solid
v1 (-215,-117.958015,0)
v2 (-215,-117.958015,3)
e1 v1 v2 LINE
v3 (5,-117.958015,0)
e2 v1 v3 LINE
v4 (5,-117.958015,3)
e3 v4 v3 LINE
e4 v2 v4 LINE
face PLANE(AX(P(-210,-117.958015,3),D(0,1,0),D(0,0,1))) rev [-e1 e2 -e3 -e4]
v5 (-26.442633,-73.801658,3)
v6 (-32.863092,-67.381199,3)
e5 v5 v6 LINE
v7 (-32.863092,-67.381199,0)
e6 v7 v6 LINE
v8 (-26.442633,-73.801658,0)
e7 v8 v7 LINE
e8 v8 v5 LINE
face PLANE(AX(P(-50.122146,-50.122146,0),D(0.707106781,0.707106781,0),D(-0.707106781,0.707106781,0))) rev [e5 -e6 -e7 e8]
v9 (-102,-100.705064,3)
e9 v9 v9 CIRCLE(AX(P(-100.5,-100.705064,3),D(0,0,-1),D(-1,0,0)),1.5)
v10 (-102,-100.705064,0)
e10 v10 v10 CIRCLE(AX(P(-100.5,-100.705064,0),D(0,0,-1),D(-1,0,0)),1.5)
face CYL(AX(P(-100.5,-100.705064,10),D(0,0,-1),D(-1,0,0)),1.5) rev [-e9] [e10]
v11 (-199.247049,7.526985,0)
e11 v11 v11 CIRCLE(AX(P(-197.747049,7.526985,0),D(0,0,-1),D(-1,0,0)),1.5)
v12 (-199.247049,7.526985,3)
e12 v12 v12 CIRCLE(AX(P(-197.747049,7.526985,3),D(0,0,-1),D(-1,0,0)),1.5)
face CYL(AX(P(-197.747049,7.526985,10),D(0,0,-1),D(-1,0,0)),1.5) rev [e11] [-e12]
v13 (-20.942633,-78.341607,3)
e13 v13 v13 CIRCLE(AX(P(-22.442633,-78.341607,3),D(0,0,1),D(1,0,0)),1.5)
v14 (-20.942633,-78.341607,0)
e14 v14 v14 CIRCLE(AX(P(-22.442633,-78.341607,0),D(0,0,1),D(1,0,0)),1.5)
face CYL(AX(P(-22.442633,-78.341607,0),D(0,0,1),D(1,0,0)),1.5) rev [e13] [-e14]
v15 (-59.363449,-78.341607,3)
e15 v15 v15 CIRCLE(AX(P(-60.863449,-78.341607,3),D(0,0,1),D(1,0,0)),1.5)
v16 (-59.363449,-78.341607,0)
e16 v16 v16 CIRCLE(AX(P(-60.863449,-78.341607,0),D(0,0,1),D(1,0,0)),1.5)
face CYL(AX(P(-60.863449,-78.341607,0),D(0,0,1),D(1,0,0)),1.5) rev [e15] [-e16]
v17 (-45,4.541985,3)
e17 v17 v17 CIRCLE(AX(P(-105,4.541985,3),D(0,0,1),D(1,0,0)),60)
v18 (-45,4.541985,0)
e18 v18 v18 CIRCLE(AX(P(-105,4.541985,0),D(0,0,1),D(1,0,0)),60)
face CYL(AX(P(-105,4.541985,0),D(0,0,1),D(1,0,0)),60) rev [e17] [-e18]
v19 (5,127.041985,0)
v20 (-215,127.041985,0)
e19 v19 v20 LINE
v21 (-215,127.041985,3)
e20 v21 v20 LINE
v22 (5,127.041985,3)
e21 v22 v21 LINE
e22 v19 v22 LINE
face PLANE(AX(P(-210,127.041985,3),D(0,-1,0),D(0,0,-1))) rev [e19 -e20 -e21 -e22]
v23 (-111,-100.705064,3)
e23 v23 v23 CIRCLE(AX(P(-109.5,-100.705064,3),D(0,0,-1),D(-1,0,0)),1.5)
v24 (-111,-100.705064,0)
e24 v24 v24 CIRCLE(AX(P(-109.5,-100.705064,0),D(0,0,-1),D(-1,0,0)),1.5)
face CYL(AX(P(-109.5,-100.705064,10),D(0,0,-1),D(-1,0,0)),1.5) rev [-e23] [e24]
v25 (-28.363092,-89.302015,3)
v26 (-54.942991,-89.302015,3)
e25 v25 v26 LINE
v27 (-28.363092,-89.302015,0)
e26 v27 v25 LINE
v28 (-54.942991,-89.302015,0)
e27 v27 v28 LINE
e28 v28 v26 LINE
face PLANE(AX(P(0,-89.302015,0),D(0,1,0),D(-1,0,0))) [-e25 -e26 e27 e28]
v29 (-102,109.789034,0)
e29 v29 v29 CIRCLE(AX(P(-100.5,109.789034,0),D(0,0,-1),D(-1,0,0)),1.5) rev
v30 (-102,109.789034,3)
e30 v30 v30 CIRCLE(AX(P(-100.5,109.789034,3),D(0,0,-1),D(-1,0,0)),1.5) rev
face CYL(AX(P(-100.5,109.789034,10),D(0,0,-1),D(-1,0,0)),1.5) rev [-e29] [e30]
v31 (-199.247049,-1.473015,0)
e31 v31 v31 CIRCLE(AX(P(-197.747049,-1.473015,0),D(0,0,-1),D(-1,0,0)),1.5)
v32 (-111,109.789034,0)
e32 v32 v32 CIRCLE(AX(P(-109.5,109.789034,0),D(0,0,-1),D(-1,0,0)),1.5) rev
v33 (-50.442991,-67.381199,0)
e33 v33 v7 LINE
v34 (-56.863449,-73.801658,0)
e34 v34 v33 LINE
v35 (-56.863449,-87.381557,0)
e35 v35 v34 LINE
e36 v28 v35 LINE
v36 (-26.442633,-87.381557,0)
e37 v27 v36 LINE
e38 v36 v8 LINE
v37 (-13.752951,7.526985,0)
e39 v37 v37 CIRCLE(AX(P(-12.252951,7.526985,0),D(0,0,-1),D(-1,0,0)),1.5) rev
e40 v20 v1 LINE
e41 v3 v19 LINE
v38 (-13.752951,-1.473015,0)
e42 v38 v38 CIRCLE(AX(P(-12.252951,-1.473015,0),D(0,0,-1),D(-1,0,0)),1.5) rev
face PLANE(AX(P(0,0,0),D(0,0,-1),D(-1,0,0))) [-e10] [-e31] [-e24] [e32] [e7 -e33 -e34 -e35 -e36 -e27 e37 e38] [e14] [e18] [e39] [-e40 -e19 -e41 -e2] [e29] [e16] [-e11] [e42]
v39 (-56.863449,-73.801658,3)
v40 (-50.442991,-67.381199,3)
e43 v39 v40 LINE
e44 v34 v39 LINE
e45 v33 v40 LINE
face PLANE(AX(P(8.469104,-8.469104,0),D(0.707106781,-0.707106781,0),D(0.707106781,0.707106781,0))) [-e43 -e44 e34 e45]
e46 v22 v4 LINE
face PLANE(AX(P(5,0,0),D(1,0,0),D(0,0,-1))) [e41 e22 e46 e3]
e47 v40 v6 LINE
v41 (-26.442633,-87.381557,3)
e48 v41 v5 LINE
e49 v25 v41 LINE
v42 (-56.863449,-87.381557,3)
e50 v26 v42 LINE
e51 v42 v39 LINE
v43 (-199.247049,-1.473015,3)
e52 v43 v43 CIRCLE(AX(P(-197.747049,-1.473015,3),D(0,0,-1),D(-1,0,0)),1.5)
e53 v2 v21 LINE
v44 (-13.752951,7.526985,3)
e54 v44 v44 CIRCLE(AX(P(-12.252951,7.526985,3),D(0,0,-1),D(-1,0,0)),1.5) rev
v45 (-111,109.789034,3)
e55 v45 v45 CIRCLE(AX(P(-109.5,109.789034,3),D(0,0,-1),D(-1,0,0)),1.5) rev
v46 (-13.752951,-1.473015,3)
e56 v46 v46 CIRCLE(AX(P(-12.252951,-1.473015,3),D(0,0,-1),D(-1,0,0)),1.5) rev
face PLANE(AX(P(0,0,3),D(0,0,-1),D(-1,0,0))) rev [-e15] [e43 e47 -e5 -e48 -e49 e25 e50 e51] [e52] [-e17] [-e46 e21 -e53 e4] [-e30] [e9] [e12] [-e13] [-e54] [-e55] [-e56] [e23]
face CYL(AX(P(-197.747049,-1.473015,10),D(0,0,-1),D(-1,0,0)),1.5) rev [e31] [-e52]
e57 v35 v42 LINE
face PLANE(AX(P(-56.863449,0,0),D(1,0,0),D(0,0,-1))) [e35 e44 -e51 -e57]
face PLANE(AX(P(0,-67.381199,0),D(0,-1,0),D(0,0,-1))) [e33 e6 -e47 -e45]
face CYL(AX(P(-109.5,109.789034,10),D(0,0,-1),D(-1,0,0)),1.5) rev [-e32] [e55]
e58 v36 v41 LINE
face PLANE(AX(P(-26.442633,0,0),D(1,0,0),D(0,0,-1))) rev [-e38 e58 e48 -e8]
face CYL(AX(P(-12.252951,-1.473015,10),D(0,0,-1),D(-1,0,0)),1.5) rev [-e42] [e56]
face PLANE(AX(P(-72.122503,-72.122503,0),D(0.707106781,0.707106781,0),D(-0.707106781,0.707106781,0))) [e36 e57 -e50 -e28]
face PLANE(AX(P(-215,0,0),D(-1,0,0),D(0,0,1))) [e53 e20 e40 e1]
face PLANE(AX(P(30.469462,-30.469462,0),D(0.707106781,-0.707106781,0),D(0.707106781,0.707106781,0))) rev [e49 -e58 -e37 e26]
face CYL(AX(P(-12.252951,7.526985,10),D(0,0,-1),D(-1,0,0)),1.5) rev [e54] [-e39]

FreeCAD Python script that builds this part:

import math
import FreeCAD as App
import Part
import Sketcher
from FreeCAD import Vector
Q = App.Units.Quantity

doc = App.newDocument("Part")
body = doc.addObject("PartDesign::Body", "Body")

# Sketch on XY plane
sketch1 = body.newObject("Sketcher::SketchObject", "Sketch")
sketch1.AttachmentSupport = (doc.getObject("XY_Plane"), [""])
sketch1.MapMode = "FlatFace"
sketch1.addGeometry([
    Part.LineSegment(Vector(-210, 127, 0), Vector(-210, -118, 0)),
    Part.LineSegment(Vector(-210, -118, 0), Vector(0, -118, 0)),
    Part.LineSegment(Vector(0, -118, 0), Vector(0, 127, 0)),
    Part.LineSegment(Vector(0, 127, 0), Vector(-210, 127, 0)),
], False)
sketch1.addConstraint([
    Sketcher.Constraint("Coincident", 0, 2, 1, 1),
    Sketcher.Constraint("Coincident", 1, 2, 2, 1),
    Sketcher.Constraint("Coincident", 2, 2, 3, 1),
    Sketcher.Constraint("Coincident", 3, 2, 0, 1),
    Sketcher.Constraint("Vertical", 0),
    Sketcher.Constraint("Horizontal", 1),
    Sketcher.Constraint("Vertical", 2),
    Sketcher.Constraint("Horizontal", 3),
    Sketcher.Constraint("PointOnObject", 1, 2, -2),
    Sketcher.Constraint("DistanceX", 1, 1, 1, 2, Q("210 mm")),
    Sketcher.Constraint("DistanceY", 0, 2, 0, 1, Q("245 mm")),
    Sketcher.Constraint("DistanceY", 0, 2, -1, 1, Q("117.958015 mm")),
])
pad1 = body.newObject("PartDesign::Pad", "Pad")
pad1.Profile = sketch1
pad1.Length = 3

# Sketch on XY plane
sketch2 = body.newObject("Sketcher::SketchObject", "Sketch001")
sketch2.AttachmentSupport = (doc.getObject("XY_Plane"), [""])
sketch2.MapMode = "FlatFace"
sketch2.AttachmentOffset = App.Placement(Vector(0, 0, 3), App.Rotation())
sketch2.addGeometry([
    Part.ArcOfCircle(Part.Circle(Vector(-105, 5, 0), Vector(0, 0, 1), 60), math.radians(0), math.radians(90)),
    Part.ArcOfCircle(Part.Circle(Vector(-105, 5, 0), Vector(0, 0, 1), 60), math.radians(90), math.radians(270)),
    Part.ArcOfCircle(Part.Circle(Vector(-105, 5, 0), Vector(0, 0, 1), 60), math.radians(-90), math.radians(0)),
], False)
sketch2.addConstraint([
    Sketcher.Constraint("Tangent", 0, 2, 1, 1),
    Sketcher.Constraint("Tangent", 1, 2, 2, 1),
    Sketcher.Constraint("Tangent", 2, 2, 0, 1),
    Sketcher.Constraint("Horizontal", 1, 3, 2, 2),
    Sketcher.Constraint("Vertical", 2, 3, 0, 2),
    Sketcher.Constraint("Vertical", 0, 2, 1, 2),
    Sketcher.Constraint("Radius", 0, Q("60 mm")),
    Sketcher.Constraint("DistanceX", 0, 3, -1, 1, Q("105 mm")),
    Sketcher.Constraint("DistanceY", -1, 1, 0, 3, Q("4.541985 mm")),
])
pocket1 = body.newObject("PartDesign::Pocket", "Pocket")
pocket1.Profile = sketch2
pocket1.Length = 3

# Sketch on XY plane
sketch3 = body.newObject("Sketcher::SketchObject", "Sketch002")
sketch3.AttachmentSupport = (doc.getObject("XY_Plane"), [""])
sketch3.MapMode = "FlatFace"
sketch3.AttachmentOffset = App.Placement(Vector(0, 0, 3), App.Rotation())
sketch3.addGeometry([
    Part.LineSegment(Vector(-50.4, -67.4, 0), Vector(-56.9, -73.8, 0)),  # 0
    Part.LineSegment(Vector(-56.9, -73.8, 0), Vector(-56.9, -87.4, 0)),  # 1
    Part.LineSegment(Vector(-56.9, -87.4, 0), Vector(-54.9, -89.3, 0)),  # 2
    Part.LineSegment(Vector(-54.9, -89.3, 0), Vector(-28.4, -89.3, 0)),  # 3
    Part.LineSegment(Vector(-28.4, -89.3, 0), Vector(-26.4, -87.4, 0)),  # 4
    Part.LineSegment(Vector(-26.4, -87.4, 0), Vector(-26.4, -73.8, 0)),  # 5
    Part.LineSegment(Vector(-26.4, -73.8, 0), Vector(-32.9, -67.4, 0)),  # 6
    Part.LineSegment(Vector(-32.9, -67.4, 0), Vector(-50.4, -67.4, 0)),  # 7
], False)
sketch3.addConstraint([
    Sketcher.Constraint("Coincident", 0, 2, 1, 1),
    Sketcher.Constraint("Coincident", 1, 2, 2, 1),
    Sketcher.Constraint("Coincident", 2, 2, 3, 1),
    Sketcher.Constraint("Coincident", 3, 2, 4, 1),
    Sketcher.Constraint("Coincident", 4, 2, 5, 1),
    Sketcher.Constraint("Coincident", 5, 2, 6, 1),
    Sketcher.Constraint("Coincident", 6, 2, 7, 1),
    Sketcher.Constraint("Coincident", 7, 2, 0, 1),
    Sketcher.Constraint("Vertical", 1),
    Sketcher.Constraint("Horizontal", 3),
    Sketcher.Constraint("Vertical", 5),
    Sketcher.Constraint("Horizontal", 7),
    Sketcher.Constraint("Perpendicular", 0, 2),
    Sketcher.Constraint("Perpendicular", 2, 4),
    Sketcher.Constraint("Perpendicular", 4, 6),
    Sketcher.Constraint("Horizontal", 1, 2, 4, 2),
    Sketcher.Constraint("Horizontal", 0, 2, 5, 2),
    Sketcher.Constraint("Equal", 2, 4),
    Sketcher.Constraint("DistanceX", 6, 2, 3, 2, Q("4.5 mm")),
    Sketcher.Constraint("DistanceX", 3, 1, 3, 2, Q("26.579899 mm")),
    Sketcher.Constraint("DistanceY", 1, 2, 1, 1, Q("13.579899 mm")),
    Sketcher.Constraint("Distance", 0, Q("9.079899 mm")),
    Sketcher.Constraint("DistanceY", 6, 2, -1, 1, Q("67.381199 mm")),
    Sketcher.Constraint("DistanceX", 0, 2, -1, 1, Q("56.863449 mm")),
])
pocket2 = body.newObject("PartDesign::Pocket", "Pocket001")
pocket2.Profile = sketch3
pocket2.Length = 3

# Sketch on XY plane
sketch4 = body.newObject("Sketcher::SketchObject", "Sketch003")
sketch4.AttachmentSupport = (doc.getObject("XY_Plane"), [""])
sketch4.MapMode = "FlatFace"
sketch4.AttachmentOffset = App.Placement(Vector(0, 0, 3), App.Rotation())
sketch4.addGeometry([
    Part.ArcOfCircle(Part.Circle(Vector(-60.9, -78.3, 0), Vector(0, 0, 1), 1.5), math.radians(90), math.radians(270)),  # 0
    Part.ArcOfCircle(Part.Circle(Vector(-60.9, -78.3, 0), Vector(0, 0, 1), 1.5), math.radians(-90), math.radians(0)),  # 1
    Part.ArcOfCircle(Part.Circle(Vector(-60.9, -78.3, 0), Vector(0, 0, 1), 1.5), math.radians(0), math.radians(90)),  # 2
    Part.ArcOfCircle(Part.Circle(Vector(-22.4, -78.3, 0), Vector(0, 0, 1), 1.5), math.radians(90), math.radians(270)),  # 3
    Part.ArcOfCircle(Part.Circle(Vector(-22.4, -78.3, 0), Vector(0, 0, 1), 1.5), math.radians(-90), math.radians(0)),  # 4
    Part.ArcOfCircle(Part.Circle(Vector(-22.4, -78.3, 0), Vector(0, 0, 1), 1.5), math.radians(0), math.radians(90)),  # 5
], False)
sketch4.addConstraint([
    Sketcher.Constraint("Tangent", 0, 2, 1, 1),
    Sketcher.Constraint("Tangent", 1, 2, 2, 1),
    Sketcher.Constraint("Tangent", 2, 2, 0, 1),
    Sketcher.Constraint("Tangent", 3, 2, 4, 1),
    Sketcher.Constraint("Tangent", 4, 2, 5, 1),
    Sketcher.Constraint("Tangent", 5, 2, 3, 1),
    Sketcher.Constraint("Equal", 2, 3),
    Sketcher.Constraint("Horizontal", 2, 3, 3, 3),
    Sketcher.Constraint("Horizontal", 5, 3, 1, 2),
    Sketcher.Constraint("Horizontal", 1, 2, 4, 2),
    Sketcher.Constraint("Vertical", 2, 3, 0, 2),
    Sketcher.Constraint("Vertical", 0, 2, 2, 2),
    Sketcher.Constraint("Vertical", 5, 3, 3, 2),
    Sketcher.Constraint("Vertical", 3, 2, 5, 2),
    Sketcher.Constraint("Radius", 0, Q("1.5 mm")),
    Sketcher.Constraint("DistanceX", 0, 3, -1, 1, Q("60.863449 mm")),
    Sketcher.Constraint("DistanceY", 0, 3, -1, 1, Q("78.341607 mm")),
    Sketcher.Constraint("DistanceX", 3, 3, -1, 1, Q("22.442633 mm")),
])
pocket3 = body.newObject("PartDesign::Pocket", "Pocket002")
pocket3.Profile = sketch4
pocket3.Type = "ThroughAll"

# Sketch on YZ plane
sketch5 = body.newObject("Sketcher::SketchObject", "Sketch004")
sketch5.AttachmentSupport = (doc.getObject("YZ_Plane"), [""])
sketch5.MapMode = "FlatFace"
sketch5.addGeometry([
    Part.LineSegment(Vector(127, 3, 0), Vector(-118, 3, 0)),
    Part.LineSegment(Vector(-118, 3, 0), Vector(-118, 0, 0)),
    Part.LineSegment(Vector(-118, 0, 0), Vector(127, 0, 0)),
    Part.LineSegment(Vector(127, 0, 0), Vector(127, 3, 0)),
], False)
sketch5.addConstraint([
    Sketcher.Constraint("Coincident", 0, 2, 1, 1),
    Sketcher.Constraint("Coincident", 1, 2, 2, 1),
    Sketcher.Constraint("Coincident", 2, 2, 3, 1),
    Sketcher.Constraint("Coincident", 3, 2, 0, 1),
    Sketcher.Constraint("Horizontal", 0),
    Sketcher.Constraint("Vertical", 1),
    Sketcher.Constraint("Horizontal", 2),
    Sketcher.Constraint("Vertical", 3),
    Sketcher.Constraint("PointOnObject", 1, 2, -1),
    Sketcher.Constraint("DistanceX", 0, 2, 0, 1, Q("245 mm")),
    Sketcher.Constraint("DistanceY", 1, 2, 1, 1, Q("3 mm")),
    Sketcher.Constraint("DistanceX", 0, 2, -1, 1, Q("117.958015 mm")),
])
pad2 = body.newObject("PartDesign::Pad", "Pad001")
pad2.Profile = sketch5
pad2.Length = 5

# Sketch on YZ plane
sketch6 = body.newObject("Sketcher::SketchObject", "Sketch005")
sketch6.AttachmentSupport = (doc.getObject("YZ_Plane"), [""])
sketch6.MapMode = "FlatFace"
sketch6.AttachmentOffset = App.Placement(Vector(0, 0, -210), App.Rotation())
sketch6.addGeometry([
    Part.LineSegment(Vector(127, 0, 0), Vector(-118, 0, 0)),
    Part.LineSegment(Vector(-118, 0, 0), Vector(-118, 3, 0)),
    Part.LineSegment(Vector(-118, 3, 0), Vector(127, 3, 0)),
    Part.LineSegment(Vector(127, 3, 0), Vector(127, 0, 0)),
], False)
sketch6.addConstraint([
    Sketcher.Constraint("Coincident", 0, 2, 1, 1),
    Sketcher.Constraint("Coincident", 1, 2, 2, 1),
    Sketcher.Constraint("Coincident", 2, 2, 3, 1),
    Sketcher.Constraint("Coincident", 3, 2, 0, 1),
    Sketcher.Constraint("Horizontal", 0),
    Sketcher.Constraint("Vertical", 1),
    Sketcher.Constraint("Horizontal", 2),
    Sketcher.Constraint("Vertical", 3),
    Sketcher.Constraint("PointOnObject", 0, 2, -1),
    Sketcher.Constraint("DistanceX", 0, 2, 0, 1, Q("245 mm")),
    Sketcher.Constraint("DistanceY", 1, 1, 1, 2, Q("3 mm")),
    Sketcher.Constraint("DistanceX", 0, 2, -1, 1, Q("117.958015 mm")),
])
pad3 = body.newObject("PartDesign::Pad", "Pad002")
pad3.Profile = sketch6
pad3.Length = 5
pad3.Reversed = True

# Sketch on XY plane
sketch7 = body.newObject("Sketcher::SketchObject", "Sketch006")
sketch7.AttachmentSupport = (doc.getObject("XY_Plane"), [""])
sketch7.MapMode = "FlatFace"
sketch7.addGeometry([
    Part.Circle(Vector(-100.5, -100.7, 0), Vector(0, 0, 1), 1.5),  # 0
    Part.Circle(Vector(-100.5, 109.8, 0), Vector(0, 0, 1), 1.5),  # 1
    Part.Circle(Vector(-12.3, -1.5, 0), Vector(0, 0, 1), 1.5),  # 2
    Part.Circle(Vector(-12.3, 7.5, 0), Vector(0, 0, 1), 1.5),  # 3
    Part.Circle(Vector(-109.5, -100.7, 0), Vector(0, 0, 1), 1.5),  # 4
    Part.Circle(Vector(-109.5, 109.8, 0), Vector(0, 0, 1), 1.5),  # 5
    Part.Circle(Vector(-197.7, -1.5, 0), Vector(0, 0, 1), 1.5),  # 6
    Part.Circle(Vector(-197.7, 7.5, 0), Vector(0, 0, 1), 1.5),  # 7
], False)
sketch7.addConstraint([
    Sketcher.Constraint("Equal", 0, 1),
    Sketcher.Constraint("Equal", 1, 2),
    Sketcher.Constraint("Equal", 2, 3),
    Sketcher.Constraint("Equal", 3, 4),
    Sketcher.Constraint("Equal", 4, 5),
    Sketcher.Constraint("Equal", 5, 6),
    Sketcher.Constraint("Equal", 6, 7),
    Sketcher.Constraint("Horizontal", 0, 3, 4, 3),
    Sketcher.Constraint("Horizontal", 1, 3, 5, 3),
    Sketcher.Constraint("Horizontal", 2, 3, 6, 3),
    Sketcher.Constraint("Horizontal", 3, 3, 7, 3),
    Sketcher.Constraint("Vertical", 0, 3, 1, 3),
    Sketcher.Constraint("Vertical", 2, 3, 3, 3),
    Sketcher.Constraint("Vertical", 4, 3, 5, 3),
    Sketcher.Constraint("Vertical", 6, 3, 7, 3),
    Sketcher.Constraint("Diameter", 0, Q("3 mm")),
    Sketcher.Constraint("DistanceY", 2, 3, 3, 3, Q("9 mm")),
    Sketcher.Constraint("DistanceX", 4, 3, 0, 3, Q("9 mm")),
    Sketcher.Constraint("DistanceX", 0, 3, -1, 1, Q("100.5 mm")),
    Sketcher.Constraint("DistanceX", 2, 3, -1, 1, Q("12.252951 mm")),
    Sketcher.Constraint("DistanceX", 6, 3, -1, 1, Q("197.747049 mm")),
    Sketcher.Constraint("DistanceY", 0, 3, 2, 3, Q("99.232049 mm")),
    Sketcher.Constraint("DistanceY", 2, 3, 1, 3, Q("111.262049 mm")),
    Sketcher.Constraint("DistanceY", 0, 3, -1, 1, Q("100.705064 mm")),
])
pocket4 = body.newObject("PartDesign::Pocket", "Pocket003")
pocket4.Profile = sketch7
pocket4.Length = 10
pocket4.Reversed = True

doc.recompute()
